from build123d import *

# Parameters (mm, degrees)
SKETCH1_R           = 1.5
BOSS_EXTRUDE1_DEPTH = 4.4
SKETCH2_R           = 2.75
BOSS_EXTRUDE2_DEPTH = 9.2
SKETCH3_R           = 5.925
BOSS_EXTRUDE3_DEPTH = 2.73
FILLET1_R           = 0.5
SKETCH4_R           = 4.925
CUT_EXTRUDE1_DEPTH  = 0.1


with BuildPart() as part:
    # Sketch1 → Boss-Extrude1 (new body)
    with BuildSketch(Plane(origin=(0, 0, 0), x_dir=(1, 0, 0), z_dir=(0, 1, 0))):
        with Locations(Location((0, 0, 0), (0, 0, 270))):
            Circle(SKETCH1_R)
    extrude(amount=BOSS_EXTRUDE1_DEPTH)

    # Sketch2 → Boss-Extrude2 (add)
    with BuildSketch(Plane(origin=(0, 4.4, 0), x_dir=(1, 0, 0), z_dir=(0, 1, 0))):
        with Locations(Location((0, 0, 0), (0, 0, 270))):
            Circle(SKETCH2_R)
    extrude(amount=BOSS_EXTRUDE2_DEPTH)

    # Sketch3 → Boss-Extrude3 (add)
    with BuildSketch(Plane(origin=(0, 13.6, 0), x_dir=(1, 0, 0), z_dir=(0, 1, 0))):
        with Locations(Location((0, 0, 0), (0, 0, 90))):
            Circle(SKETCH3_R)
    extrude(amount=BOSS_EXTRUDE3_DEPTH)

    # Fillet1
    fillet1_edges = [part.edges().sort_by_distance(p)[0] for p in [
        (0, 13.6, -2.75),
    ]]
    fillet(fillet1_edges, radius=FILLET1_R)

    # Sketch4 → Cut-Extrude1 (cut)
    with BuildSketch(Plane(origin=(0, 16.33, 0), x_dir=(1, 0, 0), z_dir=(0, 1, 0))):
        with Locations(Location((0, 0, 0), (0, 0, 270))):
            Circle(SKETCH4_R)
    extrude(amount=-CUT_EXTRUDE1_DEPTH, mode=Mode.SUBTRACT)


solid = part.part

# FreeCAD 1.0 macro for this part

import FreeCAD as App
import Part
import Sketcher
from FreeCAD import Vector
Q = App.Units.Quantity


def edges_at(feature, points):
    """Names of the edges that pass closest to the given points."""
    edges = feature.Shape.Edges
    near = lambda p: min(range(len(edges)), key=lambda i: edges[i].distToShape(Part.Vertex(*p))[0])
    return sorted({f"Edge{near(p) + 1}" for p in points})

doc = App.newDocument("Part")
params = doc.addObject("Spreadsheet::Sheet", "Params")
for row, (alias, value) in enumerate([
    ("sketch1_diameter", "3 mm"),
    ("pad1_length", "4.4 mm"),
    ("sketch2_diameter", "5.5 mm"),
    ("pad2_length", "9.2 mm"),
    ("sketch3_diameter", "11.85 mm"),
    ("pad3_length", "2.73 mm"),
    ("fillet_radius", "0.5 mm"),
    ("sketch4_diameter", "9.85 mm"),
    ("pocket1_length", "0.1 mm"),
], start=1):
    params.set(f"A{row}", alias)
    params.set(f"B{row}", "=" + value)
    params.setAlias(f"B{row}", alias)

body = doc.addObject("PartDesign::Body", "Body")

sketch1 = doc.addObject("Sketcher::SketchObject", "Sketch")
body.addObject(sketch1)
sketch1.AttachmentSupport = (doc.XZ_Plane, [""])
sketch1.MapMode = "FlatFace"
sketch1.addGeometry(Part.Circle(Vector(0, 0, 0), Vector(0, 0, 1), 1.5), False)
sketch1.addConstraint([
    Sketcher.Constraint("Coincident", 0, 3, -1, 1),
    Sketcher.Constraint("Diameter", 0, Q("3 mm")),
])
sketch1.setExpression("Constraints[1]", "Params.sketch1_diameter")
pad1 = doc.addObject("PartDesign::Pad", "Pad")
body.addObject(pad1)
pad1.Profile = sketch1
pad1.setExpression("Length", "Params.pad1_length")
pad1.Reversed = True

sketch2 = doc.addObject("Sketcher::SketchObject", "Sketch001")
body.addObject(sketch2)
sketch2.AttachmentSupport = (doc.XZ_Plane, [""])
sketch2.MapMode = "FlatFace"
sketch2.AttachmentOffset = App.Placement(Vector(0, 0, -4.4), App.Rotation())
sketch2.addGeometry(Part.Circle(Vector(0, 0, 0), Vector(0, 0, 1), 2.8), False)
sketch2.addConstraint([
    Sketcher.Constraint("Coincident", 0, 3, -1, 1),
    Sketcher.Constraint("Diameter", 0, Q("5.5 mm")),
])
sketch2.setExpression("Constraints[1]", "Params.sketch2_diameter")
pad2 = doc.addObject("PartDesign::Pad", "Pad001")
body.addObject(pad2)
pad2.Profile = sketch2
pad2.setExpression("Length", "Params.pad2_length")
pad2.Reversed = True

sketch3 = doc.addObject("Sketcher::SketchObject", "Sketch002")
body.addObject(sketch3)
sketch3.AttachmentSupport = (doc.XZ_Plane, [""])
sketch3.MapMode = "FlatFace"
sketch3.AttachmentOffset = App.Placement(Vector(0, 0, -13.6), App.Rotation())
sketch3.addGeometry(Part.Circle(Vector(0, 0, 0), Vector(0, 0, 1), 6), False)
sketch3.addConstraint([
    Sketcher.Constraint("Coincident", 0, 3, -1, 1),
    Sketcher.Constraint("Diameter", 0, Q("11.85 mm")),
])
sketch3.setExpression("Constraints[1]", "Params.sketch3_diameter")
pad3 = doc.addObject("PartDesign::Pad", "Pad002")
body.addObject(pad3)
pad3.Profile = sketch3
pad3.setExpression("Length", "Params.pad3_length")
pad3.Reversed = True
doc.recompute()

fillet = doc.addObject("PartDesign::Fillet", "Fillet")
body.addObject(fillet)
fillet.Base = (pad3, edges_at(pad3, [(0, 13.6, -2.75)]))
fillet.setExpression("Radius", "Params.fillet_radius")

sketch4 = doc.addObject("Sketcher::SketchObject", "Sketch003")
body.addObject(sketch4)
sketch4.AttachmentSupport = (doc.XZ_Plane, [""])
sketch4.MapMode = "FlatFace"
sketch4.AttachmentOffset = App.Placement(Vector(0, 0, -16.33), App.Rotation())
sketch4.addGeometry(Part.Circle(Vector(0, 0, 0), Vector(0, 0, 1), 4.9), False)
sketch4.addConstraint([
    Sketcher.Constraint("Coincident", 0, 3, -1, 1),
    Sketcher.Constraint("Diameter", 0, Q("9.85 mm")),
])
sketch4.setExpression("Constraints[1]", "Params.sketch4_diameter")
pocket1 = doc.addObject("PartDesign::Pocket", "Pocket")
body.addObject(pocket1)
pocket1.Profile = sketch4
pocket1.setExpression("Length", "Params.pocket1_length")
pocket1.Reversed = True

doc.recompute()
